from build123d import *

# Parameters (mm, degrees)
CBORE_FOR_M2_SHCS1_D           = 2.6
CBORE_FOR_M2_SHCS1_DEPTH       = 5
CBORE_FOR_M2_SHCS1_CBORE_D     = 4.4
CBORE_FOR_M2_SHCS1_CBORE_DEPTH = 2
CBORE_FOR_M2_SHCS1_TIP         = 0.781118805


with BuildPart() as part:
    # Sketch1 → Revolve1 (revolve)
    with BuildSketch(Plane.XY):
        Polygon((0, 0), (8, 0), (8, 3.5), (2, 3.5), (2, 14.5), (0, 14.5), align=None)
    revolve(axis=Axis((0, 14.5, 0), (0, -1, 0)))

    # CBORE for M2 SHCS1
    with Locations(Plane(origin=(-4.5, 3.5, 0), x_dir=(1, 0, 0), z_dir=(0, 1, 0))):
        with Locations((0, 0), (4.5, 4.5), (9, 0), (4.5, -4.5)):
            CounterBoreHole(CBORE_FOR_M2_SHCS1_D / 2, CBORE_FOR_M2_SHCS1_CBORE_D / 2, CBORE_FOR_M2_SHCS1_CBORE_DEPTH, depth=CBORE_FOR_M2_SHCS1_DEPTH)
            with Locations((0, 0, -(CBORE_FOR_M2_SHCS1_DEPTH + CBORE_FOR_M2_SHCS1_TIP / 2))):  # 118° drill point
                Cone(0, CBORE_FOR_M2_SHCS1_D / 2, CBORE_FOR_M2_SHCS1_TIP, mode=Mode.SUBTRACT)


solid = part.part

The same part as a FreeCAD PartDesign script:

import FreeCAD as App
import Part
import Sketcher

doc = App.newDocument("Part")
body = doc.addObject("PartDesign::Body", "Body")

sketch1 = body.newObject("Sketcher::SketchObject", "Sketch")
sketch1.AttachmentSupport = (doc.getObject("XY_Plane"), [""])
sketch1.MapMode = "FlatFace"
sketch1.addGeometry([
    Part.LineSegment(App.Vector(0, 0, 0), App.Vector(8, 0, 0)),
    Part.LineSegment(App.Vector(8, 0, 0), App.Vector(8, 3.5, 0)),
    Part.LineSegment(App.Vector(8, 3.5, 0), App.Vector(2, 3.5, 0)),
    Part.LineSegment(App.Vector(2, 3.5, 0), App.Vector(2, 14.5, 0)),
    Part.LineSegment(App.Vector(2, 14.5, 0), App.Vector(0, 14.5, 0)),
    Part.LineSegment(App.Vector(0, 14.5, 0), App.Vector(0, 0, 0)),
], False)
sketch1.addConstraint([
    Sketcher.Constraint("Coincident", 0, 2, 1, 1),
    Sketcher.Constraint("Coincident", 1, 2, 2, 1),
    Sketcher.Constraint("Coincident", 2, 2, 3, 1),
    Sketcher.Constraint("Coincident", 3, 2, 4, 1),
    Sketcher.Constraint("Coincident", 4, 2, 5, 1),
    Sketcher.Constraint("Coincident", 5, 2, 0, 1),
    Sketcher.Constraint("Horizontal", 0),
    Sketcher.Constraint("Vertical", 1),
    Sketcher.Constraint("Horizontal", 2),
    Sketcher.Constraint("Vertical", 3),
    Sketcher.Constraint("Horizontal", 4),
    Sketcher.Constraint("Vertical", 5),
    Sketcher.Constraint("Coincident", 5, 2, -1, 1),
    Sketcher.Constraint("DistanceX", 0, 1, 0, 2, 8.0),
    Sketcher.Constraint("DistanceX", 2, 2, 2, 1, 6.0),
    Sketcher.Constraint("DistanceY", 3, 1, 3, 2, 11.0),
    Sketcher.Constraint("DistanceY", 1, 1, 1, 2, 3.5),
])
revolution = body.newObject("PartDesign::Revolution", "Revolution")
revolution.Profile = sketch1
revolution.ReferenceAxis = (sketch1, ["V_Axis"])
revolution.Angle = 360

sketch2 = body.newObject("Sketcher::SketchObject", "Sketch001")
sketch2.AttachmentSupport = (doc.getObject("XZ_Plane"), [""])
sketch2.MapMode = "FlatFace"
sketch2.AttachmentOffset = App.Placement(App.Vector(0, 0, -3.5), App.Rotation())
sketch2.addGeometry([
    Part.Circle(App.Vector(-4.5, 0, 0), App.Vector(0, 0, 1), 1.3),
    Part.Circle(App.Vector(0, -4.5, 0), App.Vector(0, 0, 1), 1.3),
    Part.Circle(App.Vector(4.5, 0, 0), App.Vector(0, 0, 1), 1.3),
    Part.Circle(App.Vector(0, 4.5, 0), App.Vector(0, 0, 1), 1.3),
], False)
sketch2.addConstraint([
    Sketcher.Constraint("Equal", 0, 1),
    Sketcher.Constraint("Equal", 1, 2),
    Sketcher.Constraint("Equal", 2, 3),
    Sketcher.Constraint("Symmetric", 0, 3, 2, 3, -1, 1),
    Sketcher.Constraint("Symmetric", 1, 3, 3, 3, -1, 1),
    Sketcher.Constraint("PointOnObject", 0, 3, -1),
    Sketcher.Constraint("PointOnObject", 1, 3, -2),
    Sketcher.Constraint("Diameter", 0, 2.6),
    Sketcher.Constraint("DistanceX", 0, 3, 2, 3, 9.0),
    Sketcher.Constraint("DistanceY", 1, 3, 3, 3, 9.0),
])
doc.recompute()
hole = body.newObject("PartDesign::Hole", "Hole")
hole.Profile = sketch2
hole.ThreadType = "None"
hole.Diameter = 2.6
hole.DepthType = "Dimension"
hole.Depth = 5
hole.DrillPoint = "Angled"
hole.DrillPointAngle = 118
hole.HoleCutType = "Counterbore"
hole.HoleCutDiameter = 4.4
hole.HoleCutDepth = 2
hole.Reversed = True

doc.recompute()
